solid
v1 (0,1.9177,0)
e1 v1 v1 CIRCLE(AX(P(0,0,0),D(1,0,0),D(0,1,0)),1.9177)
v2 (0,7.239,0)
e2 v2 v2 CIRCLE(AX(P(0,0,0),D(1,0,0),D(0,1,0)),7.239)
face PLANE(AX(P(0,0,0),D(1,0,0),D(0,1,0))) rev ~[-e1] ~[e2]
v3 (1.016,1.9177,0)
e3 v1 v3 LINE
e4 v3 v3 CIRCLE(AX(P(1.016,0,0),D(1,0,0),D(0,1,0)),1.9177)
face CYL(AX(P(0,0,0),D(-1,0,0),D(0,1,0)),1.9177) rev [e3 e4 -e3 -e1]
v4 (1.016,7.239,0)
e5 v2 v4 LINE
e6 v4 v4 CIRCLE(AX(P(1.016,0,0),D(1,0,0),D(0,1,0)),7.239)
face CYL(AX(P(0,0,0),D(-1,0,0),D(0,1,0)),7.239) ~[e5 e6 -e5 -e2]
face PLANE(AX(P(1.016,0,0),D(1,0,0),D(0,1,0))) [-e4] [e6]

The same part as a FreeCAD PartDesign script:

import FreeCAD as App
import Part
import Sketcher
from FreeCAD import Vector
Q = App.Units.Quantity

doc = App.newDocument("Part")
body = doc.addObject("PartDesign::Body", "Body")

# Sketch on YZ plane
sketch1 = doc.addObject("Sketcher::SketchObject", "Sketch")
body.addObject(sketch1)
sketch1.AttachmentSupport = (doc.YZ_Plane, [""])
sketch1.MapMode = "FlatFace"
sketch1.addGeometry(Part.Circle(Vector(0, 0, 0), Vector(0, 0, 1), 7.2), False)
sketch1.addGeometry(Part.Circle(Vector(0, 0, 0), Vector(0, 0, 1), 1.9), False)
sketch1.addConstraint(Sketcher.Constraint("Coincident", 0, 3, -1, 1))
sketch1.addConstraint(Sketcher.Constraint("Coincident", 1, 3, -1, 1))
sketch1.addConstraint(Sketcher.Constraint("Diameter", 0, Q("0.57 in")))
sketch1.addConstraint(Sketcher.Constraint("Diameter", 1, Q("0.151 in")))
pad1 = doc.addObject("PartDesign::Pad", "Pad")
body.addObject(pad1)
pad1.Profile = sketch1
pad1.Length = Q("0.04 in")

doc.recompute()
